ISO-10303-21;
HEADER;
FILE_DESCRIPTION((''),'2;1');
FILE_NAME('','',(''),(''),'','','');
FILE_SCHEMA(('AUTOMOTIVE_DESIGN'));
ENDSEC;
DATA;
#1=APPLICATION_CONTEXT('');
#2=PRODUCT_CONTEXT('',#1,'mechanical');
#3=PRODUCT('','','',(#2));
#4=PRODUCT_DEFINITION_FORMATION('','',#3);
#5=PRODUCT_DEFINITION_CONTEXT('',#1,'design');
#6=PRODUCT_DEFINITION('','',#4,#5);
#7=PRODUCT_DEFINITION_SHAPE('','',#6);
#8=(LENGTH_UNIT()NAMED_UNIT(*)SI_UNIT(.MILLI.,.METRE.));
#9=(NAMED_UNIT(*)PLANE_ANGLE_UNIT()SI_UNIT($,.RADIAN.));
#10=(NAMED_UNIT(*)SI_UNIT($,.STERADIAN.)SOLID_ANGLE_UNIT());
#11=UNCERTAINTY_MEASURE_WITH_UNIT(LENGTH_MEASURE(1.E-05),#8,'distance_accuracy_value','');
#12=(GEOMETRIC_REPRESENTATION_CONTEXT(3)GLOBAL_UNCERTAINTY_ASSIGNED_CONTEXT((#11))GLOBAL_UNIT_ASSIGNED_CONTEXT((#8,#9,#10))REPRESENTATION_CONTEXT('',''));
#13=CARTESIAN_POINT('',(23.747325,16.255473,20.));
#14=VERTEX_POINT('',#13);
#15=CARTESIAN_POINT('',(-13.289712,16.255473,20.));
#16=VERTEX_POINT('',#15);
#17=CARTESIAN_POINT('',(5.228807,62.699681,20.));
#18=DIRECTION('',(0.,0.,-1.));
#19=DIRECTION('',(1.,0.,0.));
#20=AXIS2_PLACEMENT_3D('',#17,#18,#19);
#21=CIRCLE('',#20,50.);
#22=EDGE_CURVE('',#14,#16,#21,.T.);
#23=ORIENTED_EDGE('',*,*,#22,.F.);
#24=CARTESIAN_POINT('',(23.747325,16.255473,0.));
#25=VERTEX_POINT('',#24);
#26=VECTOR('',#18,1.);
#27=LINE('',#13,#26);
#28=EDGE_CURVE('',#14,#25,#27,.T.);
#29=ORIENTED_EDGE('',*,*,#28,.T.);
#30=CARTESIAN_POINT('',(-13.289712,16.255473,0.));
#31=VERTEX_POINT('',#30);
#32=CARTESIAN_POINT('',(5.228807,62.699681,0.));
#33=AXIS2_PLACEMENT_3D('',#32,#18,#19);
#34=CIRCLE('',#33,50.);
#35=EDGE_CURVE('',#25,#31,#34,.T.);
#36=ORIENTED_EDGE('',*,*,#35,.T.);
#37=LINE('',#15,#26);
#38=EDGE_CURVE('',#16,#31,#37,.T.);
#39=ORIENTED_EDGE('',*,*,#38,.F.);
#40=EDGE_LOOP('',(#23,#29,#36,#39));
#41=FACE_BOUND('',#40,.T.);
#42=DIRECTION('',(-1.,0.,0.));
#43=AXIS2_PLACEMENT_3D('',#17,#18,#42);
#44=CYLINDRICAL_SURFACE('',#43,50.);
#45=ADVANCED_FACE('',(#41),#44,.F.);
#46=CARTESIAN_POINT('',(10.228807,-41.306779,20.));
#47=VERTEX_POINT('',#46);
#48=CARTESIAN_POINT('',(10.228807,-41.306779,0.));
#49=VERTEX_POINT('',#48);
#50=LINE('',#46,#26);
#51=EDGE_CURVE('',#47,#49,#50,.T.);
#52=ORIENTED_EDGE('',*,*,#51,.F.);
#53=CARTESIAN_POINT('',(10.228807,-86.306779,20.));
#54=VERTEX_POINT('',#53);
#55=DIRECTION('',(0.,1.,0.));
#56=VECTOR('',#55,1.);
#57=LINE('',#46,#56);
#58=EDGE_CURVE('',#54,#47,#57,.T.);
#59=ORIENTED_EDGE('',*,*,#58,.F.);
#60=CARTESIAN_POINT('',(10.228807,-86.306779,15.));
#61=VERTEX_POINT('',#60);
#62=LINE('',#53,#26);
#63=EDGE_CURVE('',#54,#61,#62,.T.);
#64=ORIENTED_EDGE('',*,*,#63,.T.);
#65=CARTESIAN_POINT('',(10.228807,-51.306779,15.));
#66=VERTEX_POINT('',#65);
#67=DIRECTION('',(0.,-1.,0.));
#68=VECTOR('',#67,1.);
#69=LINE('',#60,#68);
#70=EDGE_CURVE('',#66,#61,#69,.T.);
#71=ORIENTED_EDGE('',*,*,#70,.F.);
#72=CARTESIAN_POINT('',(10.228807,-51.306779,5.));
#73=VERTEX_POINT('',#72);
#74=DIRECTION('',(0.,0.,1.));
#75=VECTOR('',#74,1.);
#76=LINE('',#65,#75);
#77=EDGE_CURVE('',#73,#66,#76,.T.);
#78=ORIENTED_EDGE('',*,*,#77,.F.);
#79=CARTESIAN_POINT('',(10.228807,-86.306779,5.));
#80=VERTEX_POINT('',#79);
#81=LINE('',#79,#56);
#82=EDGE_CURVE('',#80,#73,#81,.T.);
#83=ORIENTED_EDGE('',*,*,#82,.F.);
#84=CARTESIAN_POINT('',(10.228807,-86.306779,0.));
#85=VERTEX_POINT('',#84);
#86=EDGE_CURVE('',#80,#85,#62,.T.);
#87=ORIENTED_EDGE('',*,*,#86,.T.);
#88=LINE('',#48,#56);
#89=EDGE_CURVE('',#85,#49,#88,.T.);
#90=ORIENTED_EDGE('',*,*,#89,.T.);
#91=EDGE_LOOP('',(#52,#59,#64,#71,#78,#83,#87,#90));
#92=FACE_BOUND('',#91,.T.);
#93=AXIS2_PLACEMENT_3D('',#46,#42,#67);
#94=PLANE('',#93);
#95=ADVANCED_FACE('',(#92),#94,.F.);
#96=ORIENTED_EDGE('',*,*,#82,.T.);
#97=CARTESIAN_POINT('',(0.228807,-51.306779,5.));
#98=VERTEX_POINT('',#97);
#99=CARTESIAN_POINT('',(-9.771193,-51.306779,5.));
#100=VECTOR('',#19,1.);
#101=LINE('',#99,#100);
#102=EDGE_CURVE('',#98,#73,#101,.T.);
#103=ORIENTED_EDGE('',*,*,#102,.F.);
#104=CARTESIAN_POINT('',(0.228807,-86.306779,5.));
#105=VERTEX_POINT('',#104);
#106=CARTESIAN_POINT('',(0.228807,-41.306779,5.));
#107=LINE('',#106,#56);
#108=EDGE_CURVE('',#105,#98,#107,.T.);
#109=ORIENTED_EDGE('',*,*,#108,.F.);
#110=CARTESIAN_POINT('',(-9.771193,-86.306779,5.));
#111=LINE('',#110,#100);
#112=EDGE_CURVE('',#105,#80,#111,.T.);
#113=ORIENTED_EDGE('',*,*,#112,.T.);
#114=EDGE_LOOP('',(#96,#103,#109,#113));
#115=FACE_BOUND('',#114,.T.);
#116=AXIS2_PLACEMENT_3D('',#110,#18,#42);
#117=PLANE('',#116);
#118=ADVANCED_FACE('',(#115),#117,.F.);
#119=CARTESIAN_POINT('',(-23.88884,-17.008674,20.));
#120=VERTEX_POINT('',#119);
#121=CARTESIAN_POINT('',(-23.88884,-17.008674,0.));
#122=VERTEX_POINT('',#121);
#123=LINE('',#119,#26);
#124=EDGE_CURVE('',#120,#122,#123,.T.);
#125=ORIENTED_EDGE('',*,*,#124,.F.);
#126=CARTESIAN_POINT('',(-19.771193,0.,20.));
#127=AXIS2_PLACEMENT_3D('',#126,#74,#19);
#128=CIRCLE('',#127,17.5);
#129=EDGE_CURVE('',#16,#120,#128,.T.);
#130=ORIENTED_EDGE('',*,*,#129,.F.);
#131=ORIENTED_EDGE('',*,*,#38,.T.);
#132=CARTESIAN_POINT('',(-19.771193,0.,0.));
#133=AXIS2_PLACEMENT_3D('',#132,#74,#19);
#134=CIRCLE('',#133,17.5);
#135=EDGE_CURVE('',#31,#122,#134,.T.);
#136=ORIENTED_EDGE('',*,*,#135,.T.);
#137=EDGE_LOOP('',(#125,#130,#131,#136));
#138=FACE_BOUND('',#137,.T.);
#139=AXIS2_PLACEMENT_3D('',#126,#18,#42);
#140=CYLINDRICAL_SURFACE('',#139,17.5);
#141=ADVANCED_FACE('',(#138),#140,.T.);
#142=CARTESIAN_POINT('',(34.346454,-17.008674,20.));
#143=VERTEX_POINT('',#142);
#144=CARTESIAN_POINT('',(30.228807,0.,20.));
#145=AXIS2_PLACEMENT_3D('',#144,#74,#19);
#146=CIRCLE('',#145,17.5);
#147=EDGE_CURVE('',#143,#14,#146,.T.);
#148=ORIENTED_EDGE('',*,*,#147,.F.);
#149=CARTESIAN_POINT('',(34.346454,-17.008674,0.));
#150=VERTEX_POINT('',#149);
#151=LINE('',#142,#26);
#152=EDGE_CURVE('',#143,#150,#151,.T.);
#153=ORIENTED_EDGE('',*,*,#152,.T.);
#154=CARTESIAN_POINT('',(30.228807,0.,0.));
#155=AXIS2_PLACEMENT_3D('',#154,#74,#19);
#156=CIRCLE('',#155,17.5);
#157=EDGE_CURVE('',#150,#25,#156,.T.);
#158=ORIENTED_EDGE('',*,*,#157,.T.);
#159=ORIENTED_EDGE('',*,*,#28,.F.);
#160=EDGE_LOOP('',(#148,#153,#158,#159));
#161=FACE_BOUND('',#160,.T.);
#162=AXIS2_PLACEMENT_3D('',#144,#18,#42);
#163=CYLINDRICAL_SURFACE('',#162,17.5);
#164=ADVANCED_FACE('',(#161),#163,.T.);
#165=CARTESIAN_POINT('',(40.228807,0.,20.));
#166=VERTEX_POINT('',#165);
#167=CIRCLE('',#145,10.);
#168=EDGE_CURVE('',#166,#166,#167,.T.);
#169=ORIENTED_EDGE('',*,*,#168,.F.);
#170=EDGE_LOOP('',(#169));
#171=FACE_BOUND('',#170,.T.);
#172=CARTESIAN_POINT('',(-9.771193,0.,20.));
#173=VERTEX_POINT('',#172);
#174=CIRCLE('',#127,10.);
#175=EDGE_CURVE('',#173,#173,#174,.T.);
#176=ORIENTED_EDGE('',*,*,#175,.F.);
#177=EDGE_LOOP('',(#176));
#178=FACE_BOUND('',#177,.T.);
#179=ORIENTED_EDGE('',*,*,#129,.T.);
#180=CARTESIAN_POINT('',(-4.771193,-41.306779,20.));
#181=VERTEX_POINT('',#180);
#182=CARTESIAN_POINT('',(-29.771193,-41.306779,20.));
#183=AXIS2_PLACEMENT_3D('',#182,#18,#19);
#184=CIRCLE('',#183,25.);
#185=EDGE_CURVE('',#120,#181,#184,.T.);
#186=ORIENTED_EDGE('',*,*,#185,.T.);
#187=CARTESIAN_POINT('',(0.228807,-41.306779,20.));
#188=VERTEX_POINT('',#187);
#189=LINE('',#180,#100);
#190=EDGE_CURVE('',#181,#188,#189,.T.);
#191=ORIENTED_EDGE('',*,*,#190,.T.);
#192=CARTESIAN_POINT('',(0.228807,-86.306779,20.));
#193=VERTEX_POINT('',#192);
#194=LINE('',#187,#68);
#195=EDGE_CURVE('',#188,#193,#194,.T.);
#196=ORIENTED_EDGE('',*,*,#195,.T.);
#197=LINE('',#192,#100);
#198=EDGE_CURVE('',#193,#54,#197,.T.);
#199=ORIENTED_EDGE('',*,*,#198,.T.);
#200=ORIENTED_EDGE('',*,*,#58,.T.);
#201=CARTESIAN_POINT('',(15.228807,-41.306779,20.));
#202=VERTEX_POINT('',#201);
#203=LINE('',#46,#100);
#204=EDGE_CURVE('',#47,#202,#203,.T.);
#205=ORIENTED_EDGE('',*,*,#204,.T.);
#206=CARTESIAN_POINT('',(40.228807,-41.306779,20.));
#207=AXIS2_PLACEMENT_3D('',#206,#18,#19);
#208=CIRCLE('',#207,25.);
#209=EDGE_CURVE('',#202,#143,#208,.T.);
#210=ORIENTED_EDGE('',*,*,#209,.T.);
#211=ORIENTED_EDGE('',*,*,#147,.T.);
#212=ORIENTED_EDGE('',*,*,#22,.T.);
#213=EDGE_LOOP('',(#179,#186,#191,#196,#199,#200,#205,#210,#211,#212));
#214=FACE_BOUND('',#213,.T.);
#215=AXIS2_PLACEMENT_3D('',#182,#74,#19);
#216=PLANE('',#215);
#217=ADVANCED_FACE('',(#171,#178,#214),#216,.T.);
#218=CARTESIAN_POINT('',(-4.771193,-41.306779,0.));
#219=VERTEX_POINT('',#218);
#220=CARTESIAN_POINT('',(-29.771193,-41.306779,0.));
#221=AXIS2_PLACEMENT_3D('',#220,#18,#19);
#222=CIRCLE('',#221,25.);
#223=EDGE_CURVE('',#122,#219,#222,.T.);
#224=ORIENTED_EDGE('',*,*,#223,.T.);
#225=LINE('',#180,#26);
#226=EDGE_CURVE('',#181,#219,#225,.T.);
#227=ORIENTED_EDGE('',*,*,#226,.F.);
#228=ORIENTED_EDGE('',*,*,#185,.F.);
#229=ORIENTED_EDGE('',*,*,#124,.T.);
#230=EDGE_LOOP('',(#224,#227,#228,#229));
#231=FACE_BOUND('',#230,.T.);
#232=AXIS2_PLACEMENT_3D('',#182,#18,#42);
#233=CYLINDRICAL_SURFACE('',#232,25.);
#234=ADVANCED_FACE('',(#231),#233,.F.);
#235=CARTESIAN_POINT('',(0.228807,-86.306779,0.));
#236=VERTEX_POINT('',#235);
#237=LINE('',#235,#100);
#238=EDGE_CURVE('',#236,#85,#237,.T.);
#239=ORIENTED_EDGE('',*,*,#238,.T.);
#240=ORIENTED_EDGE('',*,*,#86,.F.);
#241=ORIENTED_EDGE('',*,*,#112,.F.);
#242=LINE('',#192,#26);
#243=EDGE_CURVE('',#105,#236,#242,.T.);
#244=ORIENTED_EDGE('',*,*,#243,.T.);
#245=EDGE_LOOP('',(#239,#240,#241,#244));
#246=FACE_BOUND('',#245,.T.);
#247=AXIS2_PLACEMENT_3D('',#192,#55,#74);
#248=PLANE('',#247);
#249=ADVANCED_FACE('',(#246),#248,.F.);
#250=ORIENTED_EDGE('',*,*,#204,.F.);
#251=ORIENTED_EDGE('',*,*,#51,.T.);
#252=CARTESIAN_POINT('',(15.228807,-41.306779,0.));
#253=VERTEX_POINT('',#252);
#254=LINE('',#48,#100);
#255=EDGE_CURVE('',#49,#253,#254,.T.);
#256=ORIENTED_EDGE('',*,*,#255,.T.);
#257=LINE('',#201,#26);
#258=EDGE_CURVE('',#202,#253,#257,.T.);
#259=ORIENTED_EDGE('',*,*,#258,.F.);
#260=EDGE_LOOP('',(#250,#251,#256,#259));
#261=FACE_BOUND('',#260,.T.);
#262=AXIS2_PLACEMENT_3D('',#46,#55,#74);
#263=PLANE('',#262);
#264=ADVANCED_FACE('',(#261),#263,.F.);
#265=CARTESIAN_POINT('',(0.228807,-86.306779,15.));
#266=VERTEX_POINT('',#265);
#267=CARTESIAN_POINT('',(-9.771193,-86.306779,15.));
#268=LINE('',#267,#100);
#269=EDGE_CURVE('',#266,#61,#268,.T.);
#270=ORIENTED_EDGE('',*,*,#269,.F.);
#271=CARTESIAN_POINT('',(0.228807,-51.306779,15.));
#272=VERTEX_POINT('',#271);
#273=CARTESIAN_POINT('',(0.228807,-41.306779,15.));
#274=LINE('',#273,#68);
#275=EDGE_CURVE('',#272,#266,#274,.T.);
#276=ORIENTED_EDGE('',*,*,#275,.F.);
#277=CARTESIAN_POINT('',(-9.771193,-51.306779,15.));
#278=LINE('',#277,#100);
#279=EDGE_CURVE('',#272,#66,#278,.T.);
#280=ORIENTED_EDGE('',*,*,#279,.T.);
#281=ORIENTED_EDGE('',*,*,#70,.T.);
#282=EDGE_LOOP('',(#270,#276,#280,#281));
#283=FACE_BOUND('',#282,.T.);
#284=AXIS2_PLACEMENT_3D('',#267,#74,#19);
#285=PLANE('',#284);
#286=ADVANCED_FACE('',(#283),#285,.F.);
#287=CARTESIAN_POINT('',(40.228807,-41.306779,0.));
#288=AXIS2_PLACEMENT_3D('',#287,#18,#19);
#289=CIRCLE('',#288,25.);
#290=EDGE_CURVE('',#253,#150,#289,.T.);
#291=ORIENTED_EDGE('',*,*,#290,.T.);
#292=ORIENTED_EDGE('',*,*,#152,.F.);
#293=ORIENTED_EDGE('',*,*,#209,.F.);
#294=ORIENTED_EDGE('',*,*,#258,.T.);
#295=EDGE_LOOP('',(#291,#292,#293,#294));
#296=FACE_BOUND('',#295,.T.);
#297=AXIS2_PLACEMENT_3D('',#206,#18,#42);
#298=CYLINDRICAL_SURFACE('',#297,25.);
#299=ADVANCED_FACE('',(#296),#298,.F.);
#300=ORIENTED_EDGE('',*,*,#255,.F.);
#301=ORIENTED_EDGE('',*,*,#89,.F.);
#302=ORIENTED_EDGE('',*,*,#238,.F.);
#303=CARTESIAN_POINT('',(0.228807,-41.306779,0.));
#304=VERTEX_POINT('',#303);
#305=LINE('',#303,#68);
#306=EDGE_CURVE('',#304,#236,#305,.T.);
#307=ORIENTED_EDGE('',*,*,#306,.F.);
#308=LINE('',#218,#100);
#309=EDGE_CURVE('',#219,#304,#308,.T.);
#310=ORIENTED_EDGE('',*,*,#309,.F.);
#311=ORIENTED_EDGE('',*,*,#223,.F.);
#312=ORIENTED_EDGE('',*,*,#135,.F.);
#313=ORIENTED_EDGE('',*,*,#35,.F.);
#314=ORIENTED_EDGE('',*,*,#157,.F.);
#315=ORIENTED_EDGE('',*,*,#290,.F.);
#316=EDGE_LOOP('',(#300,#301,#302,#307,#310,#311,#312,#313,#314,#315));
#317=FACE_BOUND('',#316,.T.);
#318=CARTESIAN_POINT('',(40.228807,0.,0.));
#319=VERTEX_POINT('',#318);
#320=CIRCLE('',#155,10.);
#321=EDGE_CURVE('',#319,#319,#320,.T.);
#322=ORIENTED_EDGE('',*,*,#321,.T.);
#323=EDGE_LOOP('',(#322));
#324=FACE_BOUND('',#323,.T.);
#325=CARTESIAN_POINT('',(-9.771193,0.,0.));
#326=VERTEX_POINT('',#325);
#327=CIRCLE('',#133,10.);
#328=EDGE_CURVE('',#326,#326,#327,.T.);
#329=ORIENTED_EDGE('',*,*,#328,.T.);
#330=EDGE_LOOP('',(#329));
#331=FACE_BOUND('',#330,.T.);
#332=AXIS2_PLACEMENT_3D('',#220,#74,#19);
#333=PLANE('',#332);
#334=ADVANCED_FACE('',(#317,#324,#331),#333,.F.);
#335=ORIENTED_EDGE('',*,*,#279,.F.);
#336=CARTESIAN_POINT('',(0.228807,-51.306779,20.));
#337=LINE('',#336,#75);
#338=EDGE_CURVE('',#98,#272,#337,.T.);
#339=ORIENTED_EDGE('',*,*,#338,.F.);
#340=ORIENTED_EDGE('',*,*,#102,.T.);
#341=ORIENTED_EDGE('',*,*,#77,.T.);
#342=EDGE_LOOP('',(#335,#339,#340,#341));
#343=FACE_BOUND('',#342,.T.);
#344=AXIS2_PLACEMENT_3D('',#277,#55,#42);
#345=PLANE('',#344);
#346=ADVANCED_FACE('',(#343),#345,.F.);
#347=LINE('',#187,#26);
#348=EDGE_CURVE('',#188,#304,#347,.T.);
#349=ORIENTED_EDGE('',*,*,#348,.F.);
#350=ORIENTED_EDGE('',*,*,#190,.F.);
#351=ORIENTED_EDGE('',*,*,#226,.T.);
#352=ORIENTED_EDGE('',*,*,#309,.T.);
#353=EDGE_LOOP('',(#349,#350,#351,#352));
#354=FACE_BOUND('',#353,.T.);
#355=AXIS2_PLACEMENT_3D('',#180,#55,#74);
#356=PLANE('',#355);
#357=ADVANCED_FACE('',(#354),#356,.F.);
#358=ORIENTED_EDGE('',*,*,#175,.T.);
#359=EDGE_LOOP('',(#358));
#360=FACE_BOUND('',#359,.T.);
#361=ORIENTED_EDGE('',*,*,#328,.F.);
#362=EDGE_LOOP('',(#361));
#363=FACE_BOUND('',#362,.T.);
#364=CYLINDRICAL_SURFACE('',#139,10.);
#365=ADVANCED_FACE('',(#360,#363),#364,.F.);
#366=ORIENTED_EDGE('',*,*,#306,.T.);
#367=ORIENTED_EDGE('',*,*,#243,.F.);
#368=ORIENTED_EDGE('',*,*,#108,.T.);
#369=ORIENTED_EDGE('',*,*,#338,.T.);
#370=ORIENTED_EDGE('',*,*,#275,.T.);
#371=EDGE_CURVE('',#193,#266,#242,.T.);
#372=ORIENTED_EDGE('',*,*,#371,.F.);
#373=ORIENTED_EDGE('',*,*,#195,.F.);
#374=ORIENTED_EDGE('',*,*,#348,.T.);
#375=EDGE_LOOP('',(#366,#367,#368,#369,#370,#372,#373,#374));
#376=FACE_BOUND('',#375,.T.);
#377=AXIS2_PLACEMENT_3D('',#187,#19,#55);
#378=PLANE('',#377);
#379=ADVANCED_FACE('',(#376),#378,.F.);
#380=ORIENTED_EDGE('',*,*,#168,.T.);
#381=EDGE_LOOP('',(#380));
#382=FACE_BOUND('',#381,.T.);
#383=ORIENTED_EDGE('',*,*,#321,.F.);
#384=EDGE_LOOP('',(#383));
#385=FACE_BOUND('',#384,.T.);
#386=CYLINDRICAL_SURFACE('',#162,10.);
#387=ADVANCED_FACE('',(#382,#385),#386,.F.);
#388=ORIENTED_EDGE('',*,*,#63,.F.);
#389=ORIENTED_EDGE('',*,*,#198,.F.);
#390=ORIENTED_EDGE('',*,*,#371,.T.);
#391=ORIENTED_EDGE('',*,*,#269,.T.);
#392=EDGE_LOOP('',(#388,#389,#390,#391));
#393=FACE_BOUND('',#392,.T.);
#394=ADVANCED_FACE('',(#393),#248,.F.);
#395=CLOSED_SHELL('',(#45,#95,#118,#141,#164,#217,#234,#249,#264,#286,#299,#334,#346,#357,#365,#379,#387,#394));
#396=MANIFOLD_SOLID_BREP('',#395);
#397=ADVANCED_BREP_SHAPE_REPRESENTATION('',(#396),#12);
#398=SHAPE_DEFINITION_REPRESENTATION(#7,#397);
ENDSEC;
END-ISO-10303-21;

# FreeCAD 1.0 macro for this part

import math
import FreeCAD as App
import Part
import Sketcher
Q = App.Units.Quantity


def add_polygon(sketch, points):
    """Adds a closed chain of lines whose ends are joined by coincident constraints."""
    first, n = sketch.GeometryCount, len(points)
    for a, b in zip(points, points[1:] + points[:1]):
        sketch.addGeometry(Part.LineSegment(App.Vector(*a, 0), App.Vector(*b, 0)), False)
    for i in range(n):
        sketch.addConstraint(Sketcher.Constraint("Coincident", first + i, 2, first + (i + 1) % n, 1))

doc = App.newDocument("Part")
body = doc.addObject("PartDesign::Body", "Body")

# Sketch on XY plane
sketch1 = body.newObject("Sketcher::SketchObject", "Sketch")
sketch1.AttachmentSupport = (doc.getObject("XY_Plane"), [""])
sketch1.MapMode = "FlatFace"
sketch1.addGeometry(Part.LineSegment(App.Vector(-5, -41, 0), App.Vector(0, -41, 0)), False)
sketch1.addGeometry(Part.LineSegment(App.Vector(0, -41, 0), App.Vector(0, -86, 0)), False)
sketch1.addGeometry(Part.LineSegment(App.Vector(0, -86, 0), App.Vector(10, -86, 0)), False)
sketch1.addGeometry(Part.LineSegment(App.Vector(10, -86, 0), App.Vector(10, -41, 0)), False)
sketch1.addGeometry(Part.LineSegment(App.Vector(10, -41, 0), App.Vector(15, -41, 0)), False)
sketch1.addGeometry(Part.ArcOfCircle(Part.Circle(App.Vector(40, -41, 0), App.Vector(0, 0, 1), 25), math.radians(104), math.radians(180)), False)
sketch1.addGeometry(Part.ArcOfCircle(Part.Circle(App.Vector(30, 0, 0), App.Vector(0, 0, 1), 18), math.radians(-76), math.radians(112)), False)
sketch1.addGeometry(Part.ArcOfCircle(Part.Circle(App.Vector(5, 63, 0), App.Vector(0, 0, 1), 50), math.radians(-112), math.radians(-68)), False)
sketch1.addGeometry(Part.ArcOfCircle(Part.Circle(App.Vector(-20, 0, 0), App.Vector(0, 0, 1), 18), math.radians(68), math.radians(256)), False)
sketch1.addGeometry(Part.ArcOfCircle(Part.Circle(App.Vector(-30, -41, 0), App.Vector(0, 0, 1), 25), math.radians(0), math.radians(76)), False)
sketch1.addGeometry(Part.Circle(App.Vector(-20, 0, 0), App.Vector(0, 0, 1), 10), False)
sketch1.addGeometry(Part.Circle(App.Vector(30, 0, 0), App.Vector(0, 0, 1), 10), False)
sketch1.addConstraint(Sketcher.Constraint("Coincident", 0, 2, 1, 1))
sketch1.addConstraint(Sketcher.Constraint("Coincident", 1, 2, 2, 1))
sketch1.addConstraint(Sketcher.Constraint("Coincident", 2, 2, 3, 1))
sketch1.addConstraint(Sketcher.Constraint("Coincident", 3, 2, 4, 1))
sketch1.addConstraint(Sketcher.Constraint("Coincident", 4, 2, 5, 2))
sketch1.addConstraint(Sketcher.Constraint("Tangent", 5, 1, 6, 1))
sketch1.addConstraint(Sketcher.Constraint("Tangent", 6, 2, 7, 2))
sketch1.addConstraint(Sketcher.Constraint("Tangent", 7, 1, 8, 1))
sketch1.addConstraint(Sketcher.Constraint("Tangent", 8, 2, 9, 2))
sketch1.addConstraint(Sketcher.Constraint("Coincident", 9, 1, 0, 1))
sketch1.addConstraint(Sketcher.Constraint("Horizontal", 0))
sketch1.addConstraint(Sketcher.Constraint("Vertical", 1))
sketch1.addConstraint(Sketcher.Constraint("Horizontal", 2))
sketch1.addConstraint(Sketcher.Constraint("Vertical", 3))
sketch1.addConstraint(Sketcher.Constraint("Horizontal", 4))
sketch1.addConstraint(Sketcher.Constraint("Coincident", 10, 3, 8, 3))
sketch1.addConstraint(Sketcher.Constraint("Coincident", 11, 3, 6, 3))
sketch1.addConstraint(Sketcher.Constraint("Equal", 6, 8))
sketch1.addConstraint(Sketcher.Constraint("Equal", 5, 9))
sketch1.addConstraint(Sketcher.Constraint("Equal", 10, 11))
sketch1.addConstraint(Sketcher.Constraint("PointOnObject", 6, 3, -1))
sketch1.addConstraint(Sketcher.Constraint("PointOnObject", 8, 3, -1))
sketch1.addConstraint(Sketcher.Constraint("Horizontal", 5, 3, 9, 3))
sketch1.addConstraint(Sketcher.Constraint("Horizontal", 9, 3, 0, 2))
sketch1.addConstraint(Sketcher.Constraint("Horizontal", 0, 2, 3, 2))
sketch1.addConstraint(Sketcher.Constraint("Equal", 0, 4))
sketch1.addConstraint(Sketcher.Constraint("Diameter", 10, Q("20 mm")))
sketch1.addConstraint(Sketcher.Constraint("Radius", 5, Q("25 mm")))
sketch1.addConstraint(Sketcher.Constraint("Radius", 7, Q("50 mm")))
sketch1.addConstraint(Sketcher.Constraint("Radius", 6, Q("17.5 mm")))
sketch1.addConstraint(Sketcher.Constraint("DistanceX", 0, 1, 0, 2, Q("5 mm")))
sketch1.addConstraint(Sketcher.Constraint("DistanceX", 2, 1, 2, 2, Q("10 mm")))
sketch1.addConstraint(Sketcher.Constraint("DistanceY", 1, 2, 1, 1, Q("45 mm")))
sketch1.addConstraint(Sketcher.Constraint("DistanceX", 6, 3, 5, 3, Q("10 mm")))
sketch1.addConstraint(Sketcher.Constraint("DistanceX", 7, 1, -1, 1, Q("13.289712 mm")))
pad1 = body.newObject("PartDesign::Pad", "Pad")
pad1.Profile = sketch1
pad1.Length = 20

# Sketch on YZ plane
sketch2 = body.newObject("Sketcher::SketchObject", "Sketch001")
sketch2.AttachmentSupport = (doc.getObject("YZ_Plane"), [""])
sketch2.MapMode = "FlatFace"
sketch2.AttachmentOffset = App.Placement(App.Vector(0, 0, 10.228807), App.Rotation())
add_polygon(sketch2, [(-51, 15), (-86, 15), (-86, 5), (-51, 5)])  # lines 0-3
sketch2.addConstraint(Sketcher.Constraint("Horizontal", 0))
sketch2.addConstraint(Sketcher.Constraint("Vertical", 1))
sketch2.addConstraint(Sketcher.Constraint("Horizontal", 2))
sketch2.addConstraint(Sketcher.Constraint("Vertical", 3))
sketch2.addConstraint(Sketcher.Constraint("DistanceX", 0, 2, 0, 1, Q("35 mm")))
sketch2.addConstraint(Sketcher.Constraint("DistanceY", 1, 2, 1, 1, Q("10 mm")))
sketch2.addConstraint(Sketcher.Constraint("DistanceY", -1, 1, 0, 2, Q("15 mm")))
sketch2.addConstraint(Sketcher.Constraint("DistanceX", 0, 2, -1, 1, Q("86.306779 mm")))
pocket1 = body.newObject("PartDesign::Pocket", "Pocket")
pocket1.Profile = sketch2
pocket1.Length = 20

doc.recompute()
